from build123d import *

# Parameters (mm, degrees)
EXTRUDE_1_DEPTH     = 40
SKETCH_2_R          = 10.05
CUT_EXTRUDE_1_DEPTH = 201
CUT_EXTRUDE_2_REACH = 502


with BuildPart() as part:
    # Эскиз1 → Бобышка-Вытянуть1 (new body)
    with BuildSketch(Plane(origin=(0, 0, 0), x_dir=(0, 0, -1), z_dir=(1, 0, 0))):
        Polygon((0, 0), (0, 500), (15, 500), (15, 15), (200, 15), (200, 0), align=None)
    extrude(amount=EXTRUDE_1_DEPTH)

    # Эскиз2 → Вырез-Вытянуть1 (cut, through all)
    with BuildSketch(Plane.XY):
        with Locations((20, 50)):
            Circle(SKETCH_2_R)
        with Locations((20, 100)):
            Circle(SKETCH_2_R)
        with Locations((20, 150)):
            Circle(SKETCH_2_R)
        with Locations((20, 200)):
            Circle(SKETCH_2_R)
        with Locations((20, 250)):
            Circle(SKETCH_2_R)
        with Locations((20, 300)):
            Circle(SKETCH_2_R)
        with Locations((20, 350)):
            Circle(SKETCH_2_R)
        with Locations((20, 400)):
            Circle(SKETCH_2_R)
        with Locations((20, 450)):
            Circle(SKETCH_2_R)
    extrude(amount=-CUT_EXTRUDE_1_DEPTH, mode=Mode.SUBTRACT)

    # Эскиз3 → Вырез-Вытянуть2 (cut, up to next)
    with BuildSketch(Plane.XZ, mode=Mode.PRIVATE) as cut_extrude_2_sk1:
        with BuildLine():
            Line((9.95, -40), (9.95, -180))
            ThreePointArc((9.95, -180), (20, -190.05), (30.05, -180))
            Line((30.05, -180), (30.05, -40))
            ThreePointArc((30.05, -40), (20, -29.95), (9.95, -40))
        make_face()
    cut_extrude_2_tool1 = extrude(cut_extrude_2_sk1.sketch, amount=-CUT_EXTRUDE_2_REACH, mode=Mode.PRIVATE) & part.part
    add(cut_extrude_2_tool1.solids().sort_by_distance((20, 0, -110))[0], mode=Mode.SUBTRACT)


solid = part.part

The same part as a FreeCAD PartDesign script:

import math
import FreeCAD as App
import Part
import Sketcher


def add_polygon(sketch, points):
    """Adds a closed chain of lines whose ends are joined by coincident constraints."""
    first, n = sketch.GeometryCount, len(points)
    for a, b in zip(points, points[1:] + points[:1]):
        sketch.addGeometry(Part.LineSegment(App.Vector(*a, 0), App.Vector(*b, 0)), False)
    for i in range(n):
        sketch.addConstraint(Sketcher.Constraint("Coincident", first + i, 2, first + (i + 1) % n, 1))

doc = App.newDocument("Part")
body = doc.addObject("PartDesign::Body", "Body")

# Sketch on YZ plane
sketch1 = body.newObject("Sketcher::SketchObject", "Sketch")
sketch1.AttachmentSupport = (doc.getObject("YZ_Plane"), [""])
sketch1.MapMode = "FlatFace"
add_polygon(sketch1, [(500, 0), (0, 0), (0, -200), (15, -200), (15, -15), (500, -15)])  # lines 0-5
sketch1.addConstraint([
    Sketcher.Constraint("Horizontal", 0),
    Sketcher.Constraint("Vertical", 1),
    Sketcher.Constraint("Horizontal", 2),
    Sketcher.Constraint("Vertical", 3),
    Sketcher.Constraint("Horizontal", 4),
    Sketcher.Constraint("Vertical", 5),
    Sketcher.Constraint("Coincident", 0, 2, -1, 1),
    Sketcher.Constraint("Equal", 2, 5),
    Sketcher.Constraint("DistanceX", 0, 2, 0, 1, 500.0),
    Sketcher.Constraint("DistanceX", 2, 1, 2, 2, 15.0),
    Sketcher.Constraint("DistanceY", 1, 2, 1, 1, 200.0),
])
pad1 = body.newObject("PartDesign::Pad", "Pad")
pad1.Profile = sketch1
pad1.Length = 40

# Sketch on XY plane
sketch2 = body.newObject("Sketcher::SketchObject", "Sketch001")
sketch2.AttachmentSupport = (doc.getObject("XY_Plane"), [""])
sketch2.MapMode = "FlatFace"
sketch2.addGeometry([
    Part.Circle(App.Vector(20, 50, 0), App.Vector(0, 0, 1), 10),  # 0
    Part.Circle(App.Vector(20, 100, 0), App.Vector(0, 0, 1), 10),  # 1
    Part.Circle(App.Vector(20, 150, 0), App.Vector(0, 0, 1), 10),  # 2
    Part.Circle(App.Vector(20, 200, 0), App.Vector(0, 0, 1), 10),  # 3
    Part.Circle(App.Vector(20, 250, 0), App.Vector(0, 0, 1), 10),  # 4
    Part.Circle(App.Vector(20, 300, 0), App.Vector(0, 0, 1), 10),  # 5
    Part.Circle(App.Vector(20, 350, 0), App.Vector(0, 0, 1), 10),  # 6
    Part.Circle(App.Vector(20, 400, 0), App.Vector(0, 0, 1), 10),  # 7
    Part.Circle(App.Vector(20, 450, 0), App.Vector(0, 0, 1), 10),  # 8
], False)
sketch2.addConstraint([
    Sketcher.Constraint("Equal", 0, 1),
    Sketcher.Constraint("Equal", 1, 2),
    Sketcher.Constraint("Equal", 2, 3),
    Sketcher.Constraint("Equal", 3, 4),
    Sketcher.Constraint("Equal", 4, 5),
    Sketcher.Constraint("Equal", 5, 6),
    Sketcher.Constraint("Equal", 6, 7),
    Sketcher.Constraint("Equal", 7, 8),
    Sketcher.Constraint("Vertical", 0, 3, 1, 3),
    Sketcher.Constraint("Vertical", 1, 3, 2, 3),
    Sketcher.Constraint("Vertical", 2, 3, 3, 3),
    Sketcher.Constraint("Vertical", 3, 3, 4, 3),
    Sketcher.Constraint("Vertical", 4, 3, 5, 3),
    Sketcher.Constraint("Vertical", 5, 3, 6, 3),
    Sketcher.Constraint("Vertical", 6, 3, 7, 3),
    Sketcher.Constraint("Vertical", 7, 3, 8, 3),
    Sketcher.Constraint("Diameter", 0, 20.1),
    Sketcher.Constraint("DistanceX", -1, 1, 0, 3, 20.0),
    Sketcher.Constraint("DistanceY", -1, 1, 0, 3, 50.0),
    Sketcher.Constraint("DistanceY", -1, 1, 1, 3, 100.0),
    Sketcher.Constraint("DistanceY", -1, 1, 2, 3, 150.0),
    Sketcher.Constraint("DistanceY", -1, 1, 3, 3, 200.0),
    Sketcher.Constraint("DistanceY", -1, 1, 4, 3, 250.0),
    Sketcher.Constraint("DistanceY", -1, 1, 5, 3, 300.0),
    Sketcher.Constraint("DistanceY", -1, 1, 6, 3, 350.0),
    Sketcher.Constraint("DistanceY", -1, 1, 7, 3, 400.0),
    Sketcher.Constraint("DistanceY", -1, 1, 8, 3, 450.0),
])
pocket1 = body.newObject("PartDesign::Pocket", "Pocket")
pocket1.Profile = sketch2
pocket1.Type = "ThroughAll"

# Sketch on XZ plane
sketch3 = body.newObject("Sketcher::SketchObject", "Sketch002")
sketch3.AttachmentSupport = (doc.getObject("XZ_Plane"), [""])
sketch3.MapMode = "FlatFace"
sketch3.addGeometry([
    Part.LineSegment(App.Vector(10, -40, 0), App.Vector(10, -180, 0)),
    Part.ArcOfCircle(Part.Circle(App.Vector(20, -180, 0), App.Vector(0, 0, 1), 10), math.radians(180), math.radians(360)),
    Part.LineSegment(App.Vector(30, -180, 0), App.Vector(30, -40, 0)),
    Part.ArcOfCircle(Part.Circle(App.Vector(20, -40, 0), App.Vector(0, 0, 1), 10), math.radians(0), math.radians(180)),
], False)
sketch3.addConstraint([
    Sketcher.Constraint("Tangent", 0, 2, 1, 1),
    Sketcher.Constraint("Tangent", 1, 2, 2, 1),
    Sketcher.Constraint("Tangent", 2, 2, 3, 1),
    Sketcher.Constraint("Tangent", 3, 2, 0, 1),
    Sketcher.Constraint("Vertical", 0),
    Sketcher.Constraint("Vertical", 2),
    Sketcher.Constraint("DistanceY", 0, 2, 0, 1, 140.0),
    Sketcher.Constraint("Radius", 1, 10.05),
    Sketcher.Constraint("DistanceX", -1, 1, 1, 3, 20.0),
    Sketcher.Constraint("DistanceY", 1, 3, -1, 1, 180.0),
])
pocket2 = body.newObject("PartDesign::Pocket", "Pocket001")
pocket2.Profile = sketch3
pocket2.Type = "UpToFirst"

doc.recompute()
